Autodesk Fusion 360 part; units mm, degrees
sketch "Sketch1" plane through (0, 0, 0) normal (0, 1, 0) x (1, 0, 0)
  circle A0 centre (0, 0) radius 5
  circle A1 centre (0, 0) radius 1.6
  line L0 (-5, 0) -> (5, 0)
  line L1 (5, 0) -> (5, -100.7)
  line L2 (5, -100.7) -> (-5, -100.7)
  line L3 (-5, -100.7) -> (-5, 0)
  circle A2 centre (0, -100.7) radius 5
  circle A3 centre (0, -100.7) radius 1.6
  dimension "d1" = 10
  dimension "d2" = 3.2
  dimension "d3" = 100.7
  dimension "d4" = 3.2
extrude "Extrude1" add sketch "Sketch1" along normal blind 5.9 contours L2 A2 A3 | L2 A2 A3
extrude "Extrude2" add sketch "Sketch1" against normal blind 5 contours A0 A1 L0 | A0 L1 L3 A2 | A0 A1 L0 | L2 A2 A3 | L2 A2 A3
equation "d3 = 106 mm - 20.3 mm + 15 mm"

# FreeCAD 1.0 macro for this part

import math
import FreeCAD as App
import Part
import Sketcher
Q = App.Units.Quantity

doc = App.newDocument("Part")
params = doc.addObject("Spreadsheet::Sheet", "Params")
for row, (alias, value) in enumerate([
    ("sketch1_diameter", "10 mm"),
    ("sketch1_diameter2", "3.2 mm"),
    ("pad1_length", "5.9 mm"),
    ("sketch2_radius", "5 mm"),
    ("sketch2_diameter", "3.2 mm"),
    ("sketch2_height", "100.7 mm"),
    ("pad2_length", "5 mm"),
], start=1):
    params.set(f"A{row}", alias)
    params.set(f"B{row}", "=" + value)
    params.setAlias(f"B{row}", alias)

body = doc.addObject("PartDesign::Body", "Body")

sketch1 = body.newObject("Sketcher::SketchObject", "Sketch")
sketch1.AttachmentSupport = (doc.getObject("XZ_Plane"), [""])
sketch1.MapMode = "FlatFace"
sketch1.addGeometry(Part.Circle(App.Vector(0, 100.7, 0), App.Vector(0, 0, 1), 5), False)
sketch1.addGeometry(Part.Circle(App.Vector(0, 100.7, 0), App.Vector(0, 0, 1), 1.6), False)
sketch1.addConstraint(Sketcher.Constraint("Coincident", 1, 3, 0, 3))
sketch1.addConstraint(Sketcher.Constraint("PointOnObject", 0, 3, -2))
sketch1.addConstraint(Sketcher.Constraint("Diameter", 0, Q("10 mm")))
sketch1.addConstraint(Sketcher.Constraint("Diameter", 1, Q("3.2 mm")))
sketch1.addConstraint(Sketcher.Constraint("DistanceY", -1, 1, 0, 3, Q("100.7 mm")))
sketch1.setExpression("Constraints[2]", "Params.sketch1_diameter")
sketch1.setExpression("Constraints[3]", "Params.sketch1_diameter2")
pad1 = body.newObject("PartDesign::Pad", "Pad")
pad1.Profile = sketch1
pad1.setExpression("Length", "Params.pad1_length")
pad1.Reversed = True

sketch2 = body.newObject("Sketcher::SketchObject", "Sketch001")
sketch2.AttachmentSupport = (doc.getObject("XZ_Plane"), [""])
sketch2.MapMode = "FlatFace"
sketch2.addGeometry(Part.ArcOfCircle(Part.Circle(App.Vector(0, 0, 0), App.Vector(0, 0, 1), 5), math.radians(180), math.radians(360)), False)
sketch2.addGeometry(Part.LineSegment(App.Vector(-5, 0, 0), App.Vector(-5, 100.7, 0)), False)
sketch2.addGeometry(Part.ArcOfCircle(Part.Circle(App.Vector(0, 100.7, 0), App.Vector(0, 0, 1), 5), math.radians(0), math.radians(180)), False)
sketch2.addGeometry(Part.LineSegment(App.Vector(5, 100.7, 0), App.Vector(5, 0, 0)), False)
sketch2.addGeometry(Part.Circle(App.Vector(0, 0, 0), App.Vector(0, 0, 1), 1.6), False)
sketch2.addGeometry(Part.Circle(App.Vector(0, 100.7, 0), App.Vector(0, 0, 1), 1.6), False)
sketch2.addConstraint(Sketcher.Constraint("Tangent", 0, 1, 1, 1))
sketch2.addConstraint(Sketcher.Constraint("Tangent", 1, 2, 2, 2))
sketch2.addConstraint(Sketcher.Constraint("Tangent", 2, 1, 3, 1))
sketch2.addConstraint(Sketcher.Constraint("Tangent", 3, 2, 0, 2))
sketch2.addConstraint(Sketcher.Constraint("Vertical", 1))
sketch2.addConstraint(Sketcher.Constraint("Vertical", 3))
sketch2.addConstraint(Sketcher.Constraint("Coincident", 0, 3, -1, 1))
sketch2.addConstraint(Sketcher.Constraint("Coincident", 4, 3, -1, 1))
sketch2.addConstraint(Sketcher.Constraint("Coincident", 5, 3, 2, 3))
sketch2.addConstraint(Sketcher.Constraint("Equal", 4, 5))
sketch2.addConstraint(Sketcher.Constraint("Radius", 0, Q("5 mm")))
sketch2.addConstraint(Sketcher.Constraint("Diameter", 4, Q("3.2 mm")))
sketch2.addConstraint(Sketcher.Constraint("DistanceY", 1, 1, 1, 2, Q("100.7 mm")))
sketch2.setExpression("Constraints[10]", "Params.sketch2_radius")
sketch2.setExpression("Constraints[11]", "Params.sketch2_diameter")
sketch2.setExpression("Constraints[12]", "Params.sketch2_height")
pad2 = body.newObject("PartDesign::Pad", "Pad001")
pad2.Profile = sketch2
pad2.setExpression("Length", "Params.pad2_length")

doc.recompute()
